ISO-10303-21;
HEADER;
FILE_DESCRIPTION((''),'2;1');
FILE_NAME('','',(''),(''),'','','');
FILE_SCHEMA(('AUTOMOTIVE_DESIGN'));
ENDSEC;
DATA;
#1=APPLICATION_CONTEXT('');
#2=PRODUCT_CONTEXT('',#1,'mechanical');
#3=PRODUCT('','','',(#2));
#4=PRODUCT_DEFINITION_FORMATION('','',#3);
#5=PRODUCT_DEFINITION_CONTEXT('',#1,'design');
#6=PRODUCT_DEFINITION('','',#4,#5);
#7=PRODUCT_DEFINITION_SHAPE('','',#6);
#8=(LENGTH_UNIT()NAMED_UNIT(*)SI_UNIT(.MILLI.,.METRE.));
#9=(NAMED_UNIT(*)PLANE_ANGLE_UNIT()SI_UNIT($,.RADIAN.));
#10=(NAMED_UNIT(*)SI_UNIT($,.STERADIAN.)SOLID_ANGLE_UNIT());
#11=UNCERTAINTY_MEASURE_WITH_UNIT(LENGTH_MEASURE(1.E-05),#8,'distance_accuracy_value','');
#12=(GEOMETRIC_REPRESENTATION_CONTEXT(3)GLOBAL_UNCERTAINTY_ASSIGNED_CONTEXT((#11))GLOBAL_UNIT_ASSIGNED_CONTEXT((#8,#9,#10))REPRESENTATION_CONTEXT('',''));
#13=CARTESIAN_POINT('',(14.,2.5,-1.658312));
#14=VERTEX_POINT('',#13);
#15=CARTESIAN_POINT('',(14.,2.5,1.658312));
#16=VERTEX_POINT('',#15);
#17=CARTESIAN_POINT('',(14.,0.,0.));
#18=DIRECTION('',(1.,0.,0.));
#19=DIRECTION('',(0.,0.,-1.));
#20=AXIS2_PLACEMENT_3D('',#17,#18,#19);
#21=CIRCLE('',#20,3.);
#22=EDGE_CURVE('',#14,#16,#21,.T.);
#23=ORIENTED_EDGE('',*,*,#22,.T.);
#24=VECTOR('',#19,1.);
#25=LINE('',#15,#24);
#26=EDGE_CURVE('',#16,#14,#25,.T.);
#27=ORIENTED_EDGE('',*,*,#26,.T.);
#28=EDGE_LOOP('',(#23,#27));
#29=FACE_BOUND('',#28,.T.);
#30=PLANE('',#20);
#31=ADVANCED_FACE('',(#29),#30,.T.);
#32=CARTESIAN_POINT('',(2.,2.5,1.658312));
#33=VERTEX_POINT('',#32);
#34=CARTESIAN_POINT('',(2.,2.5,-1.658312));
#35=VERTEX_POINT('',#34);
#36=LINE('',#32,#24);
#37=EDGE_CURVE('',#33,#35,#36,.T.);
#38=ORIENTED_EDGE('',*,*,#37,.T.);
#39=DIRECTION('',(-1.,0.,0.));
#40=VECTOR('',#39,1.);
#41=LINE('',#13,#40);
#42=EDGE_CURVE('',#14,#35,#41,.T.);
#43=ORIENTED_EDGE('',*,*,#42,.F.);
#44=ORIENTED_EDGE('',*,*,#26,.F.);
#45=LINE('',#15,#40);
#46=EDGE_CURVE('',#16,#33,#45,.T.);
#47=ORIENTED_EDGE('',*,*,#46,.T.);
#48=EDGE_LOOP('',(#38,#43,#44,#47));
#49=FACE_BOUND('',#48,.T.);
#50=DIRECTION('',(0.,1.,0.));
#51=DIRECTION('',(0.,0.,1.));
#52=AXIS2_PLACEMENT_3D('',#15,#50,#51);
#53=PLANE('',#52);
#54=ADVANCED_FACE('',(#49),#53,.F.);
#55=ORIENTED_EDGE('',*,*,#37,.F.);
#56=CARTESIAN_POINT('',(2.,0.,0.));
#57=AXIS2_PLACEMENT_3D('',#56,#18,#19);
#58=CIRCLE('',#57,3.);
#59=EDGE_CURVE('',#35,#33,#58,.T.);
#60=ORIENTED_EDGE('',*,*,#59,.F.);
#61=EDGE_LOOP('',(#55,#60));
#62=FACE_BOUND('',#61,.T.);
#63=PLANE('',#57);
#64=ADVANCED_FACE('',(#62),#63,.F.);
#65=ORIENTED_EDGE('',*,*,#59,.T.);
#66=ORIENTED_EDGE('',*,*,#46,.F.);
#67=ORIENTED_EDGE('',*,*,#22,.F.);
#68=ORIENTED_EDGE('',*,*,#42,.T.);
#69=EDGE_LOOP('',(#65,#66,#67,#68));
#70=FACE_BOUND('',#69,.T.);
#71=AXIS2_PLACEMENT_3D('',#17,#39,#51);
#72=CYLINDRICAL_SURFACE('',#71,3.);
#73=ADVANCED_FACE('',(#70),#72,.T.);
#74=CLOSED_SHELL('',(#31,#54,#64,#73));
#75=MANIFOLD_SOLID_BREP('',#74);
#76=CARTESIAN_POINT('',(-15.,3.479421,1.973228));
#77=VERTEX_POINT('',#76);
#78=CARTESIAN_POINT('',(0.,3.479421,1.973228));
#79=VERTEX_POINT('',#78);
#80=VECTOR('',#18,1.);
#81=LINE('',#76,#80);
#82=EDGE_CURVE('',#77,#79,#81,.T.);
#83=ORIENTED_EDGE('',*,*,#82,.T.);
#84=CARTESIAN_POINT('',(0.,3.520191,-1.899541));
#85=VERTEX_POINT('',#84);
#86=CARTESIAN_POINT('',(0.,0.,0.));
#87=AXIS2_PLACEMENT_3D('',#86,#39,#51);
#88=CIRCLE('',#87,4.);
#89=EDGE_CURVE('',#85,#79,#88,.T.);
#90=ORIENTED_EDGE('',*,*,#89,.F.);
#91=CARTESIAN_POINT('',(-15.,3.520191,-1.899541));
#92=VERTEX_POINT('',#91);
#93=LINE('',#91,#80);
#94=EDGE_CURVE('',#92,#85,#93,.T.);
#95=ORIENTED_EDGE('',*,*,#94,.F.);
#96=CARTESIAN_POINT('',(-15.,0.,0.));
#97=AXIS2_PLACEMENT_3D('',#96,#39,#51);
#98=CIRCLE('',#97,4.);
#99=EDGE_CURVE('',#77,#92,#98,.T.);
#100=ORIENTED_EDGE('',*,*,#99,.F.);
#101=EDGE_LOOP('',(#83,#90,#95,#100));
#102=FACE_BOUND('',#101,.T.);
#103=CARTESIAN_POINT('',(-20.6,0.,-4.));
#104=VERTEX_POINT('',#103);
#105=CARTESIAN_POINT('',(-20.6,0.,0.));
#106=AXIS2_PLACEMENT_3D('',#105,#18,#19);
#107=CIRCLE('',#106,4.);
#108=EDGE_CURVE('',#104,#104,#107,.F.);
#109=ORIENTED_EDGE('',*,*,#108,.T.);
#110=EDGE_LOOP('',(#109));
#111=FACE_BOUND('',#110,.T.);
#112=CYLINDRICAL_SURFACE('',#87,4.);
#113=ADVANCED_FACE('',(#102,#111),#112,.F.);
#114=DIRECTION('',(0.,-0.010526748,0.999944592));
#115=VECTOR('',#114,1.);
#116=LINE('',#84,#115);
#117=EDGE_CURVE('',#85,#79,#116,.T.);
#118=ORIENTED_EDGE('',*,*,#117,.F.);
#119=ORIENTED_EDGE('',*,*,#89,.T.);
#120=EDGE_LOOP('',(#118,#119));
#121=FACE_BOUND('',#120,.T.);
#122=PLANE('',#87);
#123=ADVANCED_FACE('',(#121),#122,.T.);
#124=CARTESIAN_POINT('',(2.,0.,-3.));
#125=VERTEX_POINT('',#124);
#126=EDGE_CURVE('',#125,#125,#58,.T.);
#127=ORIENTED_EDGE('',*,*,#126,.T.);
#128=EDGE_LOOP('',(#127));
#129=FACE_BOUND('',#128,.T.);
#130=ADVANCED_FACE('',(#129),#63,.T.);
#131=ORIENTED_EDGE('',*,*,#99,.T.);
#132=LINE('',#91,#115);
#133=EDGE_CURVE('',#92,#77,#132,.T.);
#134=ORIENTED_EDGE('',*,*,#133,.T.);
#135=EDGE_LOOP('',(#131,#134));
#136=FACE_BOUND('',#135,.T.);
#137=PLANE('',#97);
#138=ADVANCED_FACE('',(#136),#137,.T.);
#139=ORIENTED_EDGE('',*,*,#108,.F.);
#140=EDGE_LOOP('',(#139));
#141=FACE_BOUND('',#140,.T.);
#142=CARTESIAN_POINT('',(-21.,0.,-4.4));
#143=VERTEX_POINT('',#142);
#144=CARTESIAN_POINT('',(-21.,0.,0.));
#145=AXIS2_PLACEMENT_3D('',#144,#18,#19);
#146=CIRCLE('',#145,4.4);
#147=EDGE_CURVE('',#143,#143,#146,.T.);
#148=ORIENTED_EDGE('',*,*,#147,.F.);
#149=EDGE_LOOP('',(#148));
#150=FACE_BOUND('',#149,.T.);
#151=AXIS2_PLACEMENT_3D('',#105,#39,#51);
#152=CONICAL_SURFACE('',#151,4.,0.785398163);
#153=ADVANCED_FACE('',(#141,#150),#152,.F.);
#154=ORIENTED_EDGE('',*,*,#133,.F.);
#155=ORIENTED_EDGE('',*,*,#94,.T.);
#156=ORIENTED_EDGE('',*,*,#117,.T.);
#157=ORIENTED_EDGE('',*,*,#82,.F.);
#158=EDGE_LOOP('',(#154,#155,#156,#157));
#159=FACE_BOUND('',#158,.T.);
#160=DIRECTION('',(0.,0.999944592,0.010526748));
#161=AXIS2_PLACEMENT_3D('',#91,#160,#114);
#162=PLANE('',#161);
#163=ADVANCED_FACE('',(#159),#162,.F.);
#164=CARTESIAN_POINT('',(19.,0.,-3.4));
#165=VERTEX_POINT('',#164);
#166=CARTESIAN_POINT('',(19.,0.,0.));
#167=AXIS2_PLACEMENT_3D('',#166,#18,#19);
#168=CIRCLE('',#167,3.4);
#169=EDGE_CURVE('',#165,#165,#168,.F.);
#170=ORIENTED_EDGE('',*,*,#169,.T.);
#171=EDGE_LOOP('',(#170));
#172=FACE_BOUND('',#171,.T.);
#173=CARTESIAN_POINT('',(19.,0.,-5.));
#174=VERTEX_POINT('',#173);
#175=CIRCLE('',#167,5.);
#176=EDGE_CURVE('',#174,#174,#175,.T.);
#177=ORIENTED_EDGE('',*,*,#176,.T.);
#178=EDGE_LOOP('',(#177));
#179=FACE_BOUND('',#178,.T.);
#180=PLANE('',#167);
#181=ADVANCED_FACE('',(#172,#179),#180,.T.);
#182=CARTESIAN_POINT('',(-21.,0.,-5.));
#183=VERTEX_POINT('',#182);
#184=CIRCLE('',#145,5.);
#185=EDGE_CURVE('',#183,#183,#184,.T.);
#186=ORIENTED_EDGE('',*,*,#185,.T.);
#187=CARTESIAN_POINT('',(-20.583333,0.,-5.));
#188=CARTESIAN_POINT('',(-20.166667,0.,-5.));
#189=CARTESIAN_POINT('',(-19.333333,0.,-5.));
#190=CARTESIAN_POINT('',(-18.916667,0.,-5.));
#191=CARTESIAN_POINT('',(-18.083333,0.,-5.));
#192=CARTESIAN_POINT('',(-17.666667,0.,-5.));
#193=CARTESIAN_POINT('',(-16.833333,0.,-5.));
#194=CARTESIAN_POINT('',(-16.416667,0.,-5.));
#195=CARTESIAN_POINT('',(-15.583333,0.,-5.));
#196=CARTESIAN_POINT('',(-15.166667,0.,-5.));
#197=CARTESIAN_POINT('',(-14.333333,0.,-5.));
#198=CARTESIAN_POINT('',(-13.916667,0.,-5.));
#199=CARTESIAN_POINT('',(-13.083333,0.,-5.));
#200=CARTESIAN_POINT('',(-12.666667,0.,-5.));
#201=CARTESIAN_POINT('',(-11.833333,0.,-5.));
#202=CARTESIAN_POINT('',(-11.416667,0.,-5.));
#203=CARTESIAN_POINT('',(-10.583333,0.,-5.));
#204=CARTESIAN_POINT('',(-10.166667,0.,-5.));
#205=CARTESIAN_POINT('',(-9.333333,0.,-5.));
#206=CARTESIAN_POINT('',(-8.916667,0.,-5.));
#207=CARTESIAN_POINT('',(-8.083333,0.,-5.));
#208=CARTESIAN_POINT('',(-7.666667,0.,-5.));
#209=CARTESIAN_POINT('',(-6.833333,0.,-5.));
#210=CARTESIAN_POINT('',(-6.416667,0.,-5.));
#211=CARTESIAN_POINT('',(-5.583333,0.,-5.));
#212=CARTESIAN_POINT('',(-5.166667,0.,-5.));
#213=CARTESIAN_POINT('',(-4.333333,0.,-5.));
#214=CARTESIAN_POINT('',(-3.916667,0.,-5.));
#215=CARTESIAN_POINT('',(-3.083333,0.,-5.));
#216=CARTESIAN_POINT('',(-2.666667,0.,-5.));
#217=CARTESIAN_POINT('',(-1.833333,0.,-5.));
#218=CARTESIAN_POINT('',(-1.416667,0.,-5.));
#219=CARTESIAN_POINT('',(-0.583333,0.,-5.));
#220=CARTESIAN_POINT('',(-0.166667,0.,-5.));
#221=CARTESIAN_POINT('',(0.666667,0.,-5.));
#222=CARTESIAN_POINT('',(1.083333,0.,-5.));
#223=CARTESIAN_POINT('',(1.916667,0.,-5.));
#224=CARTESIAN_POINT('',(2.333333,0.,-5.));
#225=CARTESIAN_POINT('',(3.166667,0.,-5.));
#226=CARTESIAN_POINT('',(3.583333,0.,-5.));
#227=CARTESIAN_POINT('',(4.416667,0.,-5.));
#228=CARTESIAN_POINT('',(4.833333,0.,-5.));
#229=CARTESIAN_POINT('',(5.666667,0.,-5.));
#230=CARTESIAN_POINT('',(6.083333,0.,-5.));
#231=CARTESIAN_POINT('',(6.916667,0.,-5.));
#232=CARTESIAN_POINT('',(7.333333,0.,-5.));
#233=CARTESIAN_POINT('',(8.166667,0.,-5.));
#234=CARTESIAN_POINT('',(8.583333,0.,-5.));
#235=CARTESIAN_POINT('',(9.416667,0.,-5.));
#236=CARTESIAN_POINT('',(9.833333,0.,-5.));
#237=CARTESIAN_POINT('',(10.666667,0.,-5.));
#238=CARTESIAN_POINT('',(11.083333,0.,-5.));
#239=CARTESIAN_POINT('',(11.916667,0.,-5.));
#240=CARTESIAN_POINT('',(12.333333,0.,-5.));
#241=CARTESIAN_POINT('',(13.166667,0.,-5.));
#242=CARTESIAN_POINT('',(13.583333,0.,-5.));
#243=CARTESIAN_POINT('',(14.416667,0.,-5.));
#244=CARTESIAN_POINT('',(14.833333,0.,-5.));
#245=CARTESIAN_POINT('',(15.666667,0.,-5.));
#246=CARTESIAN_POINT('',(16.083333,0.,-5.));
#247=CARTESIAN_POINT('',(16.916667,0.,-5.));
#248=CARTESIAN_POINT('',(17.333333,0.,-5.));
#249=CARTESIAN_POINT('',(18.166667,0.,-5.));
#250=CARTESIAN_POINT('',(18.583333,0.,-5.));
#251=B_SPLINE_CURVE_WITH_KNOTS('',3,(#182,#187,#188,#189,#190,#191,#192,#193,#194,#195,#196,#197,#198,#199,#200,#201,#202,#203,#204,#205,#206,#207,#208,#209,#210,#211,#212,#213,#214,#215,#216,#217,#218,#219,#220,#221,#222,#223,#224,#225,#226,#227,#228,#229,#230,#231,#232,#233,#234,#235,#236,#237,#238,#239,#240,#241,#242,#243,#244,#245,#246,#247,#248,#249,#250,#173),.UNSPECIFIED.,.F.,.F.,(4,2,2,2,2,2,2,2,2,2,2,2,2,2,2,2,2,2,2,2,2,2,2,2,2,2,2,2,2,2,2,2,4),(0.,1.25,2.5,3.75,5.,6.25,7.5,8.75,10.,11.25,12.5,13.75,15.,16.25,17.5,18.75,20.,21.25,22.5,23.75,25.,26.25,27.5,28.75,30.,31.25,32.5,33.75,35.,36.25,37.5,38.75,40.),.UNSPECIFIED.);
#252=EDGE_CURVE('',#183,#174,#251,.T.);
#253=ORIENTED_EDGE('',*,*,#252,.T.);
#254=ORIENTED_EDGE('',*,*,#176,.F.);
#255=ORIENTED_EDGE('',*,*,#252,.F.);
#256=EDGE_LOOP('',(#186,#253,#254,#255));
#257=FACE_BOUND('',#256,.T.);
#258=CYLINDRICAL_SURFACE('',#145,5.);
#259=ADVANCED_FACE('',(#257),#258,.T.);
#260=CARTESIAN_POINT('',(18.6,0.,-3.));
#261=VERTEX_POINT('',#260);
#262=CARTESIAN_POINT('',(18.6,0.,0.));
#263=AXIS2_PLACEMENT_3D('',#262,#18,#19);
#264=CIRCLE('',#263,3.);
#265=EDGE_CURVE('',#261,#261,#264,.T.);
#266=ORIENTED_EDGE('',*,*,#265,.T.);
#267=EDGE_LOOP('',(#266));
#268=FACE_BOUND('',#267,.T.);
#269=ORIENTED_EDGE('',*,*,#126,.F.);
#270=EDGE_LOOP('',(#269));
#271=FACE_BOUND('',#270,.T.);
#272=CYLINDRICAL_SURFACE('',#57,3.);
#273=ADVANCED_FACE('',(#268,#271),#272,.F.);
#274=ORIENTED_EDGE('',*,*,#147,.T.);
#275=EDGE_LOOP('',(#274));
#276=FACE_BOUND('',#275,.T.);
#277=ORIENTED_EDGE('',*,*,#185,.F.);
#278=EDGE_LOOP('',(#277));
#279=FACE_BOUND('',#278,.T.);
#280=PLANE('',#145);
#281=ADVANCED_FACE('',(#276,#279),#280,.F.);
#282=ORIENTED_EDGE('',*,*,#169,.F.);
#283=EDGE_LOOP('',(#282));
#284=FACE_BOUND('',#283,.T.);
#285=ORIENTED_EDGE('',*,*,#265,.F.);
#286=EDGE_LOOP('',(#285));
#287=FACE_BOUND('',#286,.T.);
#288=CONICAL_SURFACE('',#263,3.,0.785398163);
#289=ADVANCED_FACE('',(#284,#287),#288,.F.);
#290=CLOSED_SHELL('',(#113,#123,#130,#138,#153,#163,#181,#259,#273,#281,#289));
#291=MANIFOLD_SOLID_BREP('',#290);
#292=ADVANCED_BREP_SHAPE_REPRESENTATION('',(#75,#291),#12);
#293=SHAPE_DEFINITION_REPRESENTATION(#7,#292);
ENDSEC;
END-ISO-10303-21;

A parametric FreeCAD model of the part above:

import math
import FreeCAD as App
import Part
import Sketcher
from FreeCAD import Vector


def edges_at(feature, points):
    """Names of the edges that pass closest to the given points."""
    edges = feature.Shape.Edges
    near = lambda p: min(range(len(edges)), key=lambda i: edges[i].distToShape(Part.Vertex(*p))[0])
    return sorted({f"Edge{near(p) + 1}" for p in points})

doc = App.newDocument("Part")
body = doc.addObject("PartDesign::Body", "Body")

# Sketch on YZ plane
sketch1 = body.newObject("Sketcher::SketchObject", "Sketch")
sketch1.AttachmentSupport = (doc.getObject("YZ_Plane"), [""])
sketch1.MapMode = "FlatFace"
sketch1.addGeometry(Part.Circle(Vector(0, 0, 0), Vector(0, 0, 1), 5), False)
sketch1.addConstraint([
    Sketcher.Constraint("Coincident", 0, 3, -1, 1),
    Sketcher.Constraint("Diameter", 0, 10.0),
])
pad1 = body.newObject("PartDesign::Pad", "Pad")
pad1.Profile = sketch1
pad1.Type = "TwoLengths"
pad1.Length = 19
pad1.Length2 = 21

# Sketch on YZ plane
sketch2 = body.newObject("Sketcher::SketchObject", "Sketch001")
sketch2.AttachmentSupport = (doc.getObject("YZ_Plane"), [""])
sketch2.MapMode = "FlatFace"
sketch2.AttachmentOffset = App.Placement(Vector(0, 0, 19), App.Rotation())
sketch2.addGeometry(Part.Circle(Vector(0, 0, 0), Vector(0, 0, 1), 3), False)
sketch2.addConstraint([
    Sketcher.Constraint("Coincident", 0, 3, -1, 1),
    Sketcher.Constraint("Diameter", 0, 6.0),
])
pocket1 = body.newObject("PartDesign::Pocket", "Pocket")
pocket1.Profile = sketch2
pocket1.Length = 17

# Sketch on YZ plane
sketch3 = body.newObject("Sketcher::SketchObject", "Sketch002")
sketch3.AttachmentSupport = (doc.getObject("YZ_Plane"), [""])
sketch3.MapMode = "FlatFace"
sketch3.AttachmentOffset = App.Placement(Vector(0, 0, -21), App.Rotation())
sketch3.addGeometry(Part.Circle(Vector(0, 0, 0), Vector(0, 0, 1), 4), False)
sketch3.addConstraint([
    Sketcher.Constraint("Coincident", 0, 3, -1, 1),
    Sketcher.Constraint("Diameter", 0, 8.0),
])
pocket2 = body.newObject("PartDesign::Pocket", "Pocket001")
pocket2.Profile = sketch3
pocket2.Length = 21
pocket2.Reversed = True

# Sketch on YZ plane
sketch4 = body.newObject("Sketcher::SketchObject", "Sketch003")
sketch4.AttachmentSupport = (doc.getObject("YZ_Plane"), [""])
sketch4.MapMode = "FlatFace"
sketch4.AttachmentOffset = App.Placement(Vector(0, 0, -15), App.Rotation())
sketch4.addGeometry([
    Part.LineSegment(Vector(3.5, -1.9, 0), Vector(3.5, 2, 0)),
    Part.ArcOfCircle(Part.Circle(Vector(0, 0, 0), Vector(0, 0, 1), 4), math.radians(-28), math.radians(30)),
], False)
sketch4.addConstraint([
    Sketcher.Constraint("Coincident", 0, 1, 1, 1),
    Sketcher.Constraint("Coincident", 1, 2, 0, 2),
    Sketcher.Constraint("Coincident", 1, 3, -1, 1),
    Sketcher.Constraint("Radius", 1, 4.0),
    Sketcher.Constraint("DistanceX", -1, 1, 0, 1, 3.520191),
    Sketcher.Constraint("DistanceX", -1, 1, 1, 2, 3.479421),
])
pad2 = body.newObject("PartDesign::Pad", "Pad001")
pad2.Profile = sketch4
pad2.Length = 15
doc.recompute()

chamfer = body.newObject("PartDesign::Chamfer", "Chamfer")
chamfer.Base = (pad2, edges_at(pad2, [(-21, 0, -4), (19, 0, 3)]))
chamfer.Size = 0.4
body2 = doc.addObject("PartDesign::Body", "Body001")

# Sketch on YZ plane
sketch5 = body2.newObject("Sketcher::SketchObject", "Sketch004")
sketch5.AttachmentSupport = (doc.getObject("YZ_Plane001"), [""])
sketch5.MapMode = "FlatFace"
sketch5.AttachmentOffset = App.Placement(Vector(0, 0, 2), App.Rotation())
sketch5.addGeometry([
    Part.LineSegment(Vector(2.5, 1.7, 0), Vector(2.5, -1.7, 0)),
    Part.ArcOfCircle(Part.Circle(Vector(0, 0, 0), Vector(0, 0, 1), 3), math.radians(-34), math.radians(34)),
], False)
sketch5.addConstraint([
    Sketcher.Constraint("Coincident", 0, 1, 1, 2),
    Sketcher.Constraint("Coincident", 1, 1, 0, 2),
    Sketcher.Constraint("Vertical", 0),
    Sketcher.Constraint("Coincident", 1, 3, -1, 1),
    Sketcher.Constraint("Radius", 1, 3.0),
    Sketcher.Constraint("DistanceX", -1, 1, 0, 1, 2.5),
])
pad3 = body2.newObject("PartDesign::Pad", "Pad002")
pad3.Profile = sketch5
pad3.Length = 12

doc.recompute()
